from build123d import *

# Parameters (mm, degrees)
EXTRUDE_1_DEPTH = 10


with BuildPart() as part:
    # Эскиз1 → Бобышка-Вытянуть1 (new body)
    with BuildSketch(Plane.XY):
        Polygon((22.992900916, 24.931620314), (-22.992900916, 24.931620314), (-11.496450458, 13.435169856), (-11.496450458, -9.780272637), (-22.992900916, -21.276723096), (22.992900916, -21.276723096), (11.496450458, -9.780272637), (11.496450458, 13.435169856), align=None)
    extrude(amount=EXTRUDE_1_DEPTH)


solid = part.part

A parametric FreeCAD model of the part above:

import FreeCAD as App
import Part
import Sketcher

doc = App.newDocument("Part")
body = doc.addObject("PartDesign::Body", "Body")

# Sketch on XY plane
sketch1 = doc.addObject("Sketcher::SketchObject", "Sketch")
body.addObject(sketch1)
sketch1.AttachmentSupport = (doc.XY_Plane, [""])
sketch1.MapMode = "FlatFace"
sketch1.addGeometry(Part.LineSegment(App.Vector(23, 25, 0), App.Vector(-23, 25, 0)), False)
sketch1.addGeometry(Part.LineSegment(App.Vector(-23, 25, 0), App.Vector(-11, 13, 0)), False)
sketch1.addGeometry(Part.LineSegment(App.Vector(-11, 13, 0), App.Vector(-11, -10, 0)), False)
sketch1.addGeometry(Part.LineSegment(App.Vector(-11, -10, 0), App.Vector(-23, -21, 0)), False)
sketch1.addGeometry(Part.LineSegment(App.Vector(-23, -21, 0), App.Vector(23, -21, 0)), False)
sketch1.addGeometry(Part.LineSegment(App.Vector(23, -21, 0), App.Vector(11, -10, 0)), False)
sketch1.addGeometry(Part.LineSegment(App.Vector(11, -10, 0), App.Vector(11, 13, 0)), False)
sketch1.addGeometry(Part.LineSegment(App.Vector(11, 13, 0), App.Vector(23, 25, 0)), False)
sketch1.addConstraint(Sketcher.Constraint("Coincident", 0, 2, 1, 1))
sketch1.addConstraint(Sketcher.Constraint("Coincident", 1, 2, 2, 1))
sketch1.addConstraint(Sketcher.Constraint("Coincident", 2, 2, 3, 1))
sketch1.addConstraint(Sketcher.Constraint("Coincident", 3, 2, 4, 1))
sketch1.addConstraint(Sketcher.Constraint("Coincident", 4, 2, 5, 1))
sketch1.addConstraint(Sketcher.Constraint("Coincident", 5, 2, 6, 1))
sketch1.addConstraint(Sketcher.Constraint("Coincident", 6, 2, 7, 1))
sketch1.addConstraint(Sketcher.Constraint("Coincident", 7, 2, 0, 1))
sketch1.addConstraint(Sketcher.Constraint("Horizontal", 0))
sketch1.addConstraint(Sketcher.Constraint("Vertical", 2))
sketch1.addConstraint(Sketcher.Constraint("Horizontal", 4))
sketch1.addConstraint(Sketcher.Constraint("Vertical", 6))
sketch1.addConstraint(Sketcher.Constraint("Symmetric", 2, 2, 5, 2, -2))
sketch1.addConstraint(Sketcher.Constraint("Perpendicular", 1, 3))
sketch1.addConstraint(Sketcher.Constraint("Perpendicular", 3, 5))
sketch1.addConstraint(Sketcher.Constraint("Perpendicular", 5, 7))
sketch1.addConstraint(Sketcher.Constraint("Horizontal", 1, 2, 6, 2))
sketch1.addConstraint(Sketcher.Constraint("Vertical", 0, 2, 3, 2))
sketch1.addConstraint(Sketcher.Constraint("Vertical", 4, 2, 7, 2))
sketch1.addConstraint(Sketcher.Constraint("DistanceX", 0, 2, 0, 1, 45.985802))
sketch1.addConstraint(Sketcher.Constraint("DistanceX", 2, 2, 5, 2, 22.992901))
sketch1.addConstraint(Sketcher.Constraint("DistanceY", 2, 2, 2, 1, 23.215442))
sketch1.addConstraint(Sketcher.Constraint("DistanceY", -1, 1, 0, 2, 24.93162))
pad1 = doc.addObject("PartDesign::Pad", "Pad")
body.addObject(pad1)
pad1.Profile = sketch1
pad1.Length = 10

doc.recompute()
